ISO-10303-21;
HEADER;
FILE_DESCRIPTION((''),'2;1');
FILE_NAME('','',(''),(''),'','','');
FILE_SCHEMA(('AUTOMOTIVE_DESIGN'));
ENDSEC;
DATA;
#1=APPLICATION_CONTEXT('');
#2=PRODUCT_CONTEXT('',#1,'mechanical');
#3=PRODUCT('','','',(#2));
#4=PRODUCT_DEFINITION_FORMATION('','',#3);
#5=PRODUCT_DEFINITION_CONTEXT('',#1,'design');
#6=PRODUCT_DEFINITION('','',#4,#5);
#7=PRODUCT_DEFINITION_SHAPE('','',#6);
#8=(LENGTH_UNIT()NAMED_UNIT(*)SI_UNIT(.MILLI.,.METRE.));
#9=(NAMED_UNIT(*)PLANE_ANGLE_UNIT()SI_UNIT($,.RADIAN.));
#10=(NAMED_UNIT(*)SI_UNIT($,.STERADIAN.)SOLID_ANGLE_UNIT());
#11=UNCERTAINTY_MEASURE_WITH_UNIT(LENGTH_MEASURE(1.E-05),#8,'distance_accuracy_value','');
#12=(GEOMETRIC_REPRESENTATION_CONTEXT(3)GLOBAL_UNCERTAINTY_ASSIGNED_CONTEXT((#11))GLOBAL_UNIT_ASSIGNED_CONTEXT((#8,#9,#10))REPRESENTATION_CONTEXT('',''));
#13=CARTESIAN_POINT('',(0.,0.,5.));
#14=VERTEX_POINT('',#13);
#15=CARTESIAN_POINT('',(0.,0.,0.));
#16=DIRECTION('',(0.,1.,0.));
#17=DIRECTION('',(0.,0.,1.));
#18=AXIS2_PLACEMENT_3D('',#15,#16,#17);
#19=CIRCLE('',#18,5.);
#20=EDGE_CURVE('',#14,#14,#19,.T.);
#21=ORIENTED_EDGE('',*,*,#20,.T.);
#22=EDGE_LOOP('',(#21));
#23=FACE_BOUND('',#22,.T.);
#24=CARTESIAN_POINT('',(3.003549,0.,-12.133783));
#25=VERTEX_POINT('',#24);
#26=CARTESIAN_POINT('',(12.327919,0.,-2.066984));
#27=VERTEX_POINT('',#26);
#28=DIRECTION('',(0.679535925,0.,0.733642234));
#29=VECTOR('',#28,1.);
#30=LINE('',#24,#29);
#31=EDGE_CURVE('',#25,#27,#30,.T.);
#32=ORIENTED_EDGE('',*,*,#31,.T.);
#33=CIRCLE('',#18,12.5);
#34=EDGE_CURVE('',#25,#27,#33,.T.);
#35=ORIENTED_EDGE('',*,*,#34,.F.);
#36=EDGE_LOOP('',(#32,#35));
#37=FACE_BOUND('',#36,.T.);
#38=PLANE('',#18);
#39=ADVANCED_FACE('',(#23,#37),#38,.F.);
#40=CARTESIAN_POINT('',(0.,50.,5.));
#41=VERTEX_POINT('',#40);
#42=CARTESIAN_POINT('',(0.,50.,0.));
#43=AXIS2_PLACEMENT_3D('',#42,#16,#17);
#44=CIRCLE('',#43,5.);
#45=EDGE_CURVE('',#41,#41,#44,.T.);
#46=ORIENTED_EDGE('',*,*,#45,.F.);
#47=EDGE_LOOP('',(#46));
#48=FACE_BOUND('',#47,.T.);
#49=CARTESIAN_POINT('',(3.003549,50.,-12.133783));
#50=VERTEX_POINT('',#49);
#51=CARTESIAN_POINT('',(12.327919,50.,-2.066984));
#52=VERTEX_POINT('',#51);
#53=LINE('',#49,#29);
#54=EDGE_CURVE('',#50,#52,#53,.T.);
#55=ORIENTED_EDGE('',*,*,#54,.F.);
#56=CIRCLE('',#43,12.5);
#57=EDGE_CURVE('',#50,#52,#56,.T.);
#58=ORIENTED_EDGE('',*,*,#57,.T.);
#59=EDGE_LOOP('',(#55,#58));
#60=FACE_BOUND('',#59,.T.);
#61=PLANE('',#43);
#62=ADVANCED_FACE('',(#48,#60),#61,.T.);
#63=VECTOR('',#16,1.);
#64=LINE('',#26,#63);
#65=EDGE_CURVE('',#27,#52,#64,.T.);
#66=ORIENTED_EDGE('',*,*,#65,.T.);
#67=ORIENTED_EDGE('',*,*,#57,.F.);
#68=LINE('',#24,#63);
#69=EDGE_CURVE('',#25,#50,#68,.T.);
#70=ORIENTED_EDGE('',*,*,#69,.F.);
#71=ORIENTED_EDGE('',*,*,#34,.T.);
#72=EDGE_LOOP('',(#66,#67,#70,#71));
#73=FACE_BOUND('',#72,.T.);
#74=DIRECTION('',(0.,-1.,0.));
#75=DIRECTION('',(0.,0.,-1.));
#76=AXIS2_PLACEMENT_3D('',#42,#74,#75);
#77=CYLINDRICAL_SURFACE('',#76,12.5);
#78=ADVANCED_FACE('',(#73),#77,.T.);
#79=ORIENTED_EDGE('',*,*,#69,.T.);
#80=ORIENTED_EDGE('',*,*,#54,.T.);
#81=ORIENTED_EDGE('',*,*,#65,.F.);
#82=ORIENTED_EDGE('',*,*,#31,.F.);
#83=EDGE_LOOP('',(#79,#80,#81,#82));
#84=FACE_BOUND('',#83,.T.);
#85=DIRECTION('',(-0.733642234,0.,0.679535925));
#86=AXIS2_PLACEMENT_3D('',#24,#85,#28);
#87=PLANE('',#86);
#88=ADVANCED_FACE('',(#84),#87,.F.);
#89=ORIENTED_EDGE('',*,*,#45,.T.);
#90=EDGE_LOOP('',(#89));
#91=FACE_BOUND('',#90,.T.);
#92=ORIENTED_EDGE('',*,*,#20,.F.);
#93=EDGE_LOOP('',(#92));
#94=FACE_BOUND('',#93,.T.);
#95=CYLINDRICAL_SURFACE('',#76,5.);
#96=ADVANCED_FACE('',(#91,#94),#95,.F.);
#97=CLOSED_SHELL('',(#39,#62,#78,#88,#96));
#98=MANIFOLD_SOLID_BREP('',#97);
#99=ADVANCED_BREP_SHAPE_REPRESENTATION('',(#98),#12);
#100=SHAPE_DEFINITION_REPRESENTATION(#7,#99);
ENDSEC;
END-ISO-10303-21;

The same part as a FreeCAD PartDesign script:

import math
import FreeCAD as App
import Part
import Sketcher
from FreeCAD import Vector
Q = App.Units.Quantity

doc = App.newDocument("Part")
body = doc.addObject("PartDesign::Body", "Body")

# Sketch on XZ plane
sketch1 = body.newObject("Sketcher::SketchObject", "Sketch")
sketch1.AttachmentSupport = (doc.getObject("XZ_Plane"), [""])
sketch1.MapMode = "FlatFace"
sketch1.addGeometry(Part.Circle(Vector(0, 0, 0), Vector(0, 0, 1), 12), False)
sketch1.addGeometry(Part.Circle(Vector(0, 0, 0), Vector(0, 0, 1), 5), False)
sketch1.addConstraint(Sketcher.Constraint("Coincident", 0, 3, -1, 1))
sketch1.addConstraint(Sketcher.Constraint("Coincident", 1, 3, -1, 1))
sketch1.addConstraint(Sketcher.Constraint("Diameter", 0, Q("25 mm")))
sketch1.addConstraint(Sketcher.Constraint("Diameter", 1, Q("10 mm")))
pad1 = body.newObject("PartDesign::Pad", "Pad")
pad1.Profile = sketch1
pad1.Length = 50
pad1.Reversed = True

# Sketch on XZ plane
sketch2 = body.newObject("Sketcher::SketchObject", "Sketch001")
sketch2.AttachmentSupport = (doc.getObject("XZ_Plane"), [""])
sketch2.MapMode = "FlatFace"
sketch2.AttachmentOffset = App.Placement(Vector(0, 0, -50), App.Rotation())
sketch2.addGeometry(Part.LineSegment(Vector(3, -12, 0), Vector(12, -2, 0)), False)
sketch2.addGeometry(Part.ArcOfCircle(Part.Circle(Vector(0, 0, 0), Vector(0, 0, 1), 12), math.radians(-76), math.radians(-10)), False)
sketch2.addConstraint(Sketcher.Constraint("Coincident", 0, 1, 1, 1))
sketch2.addConstraint(Sketcher.Constraint("Coincident", 1, 2, 0, 2))
sketch2.addConstraint(Sketcher.Constraint("Coincident", 1, 3, -1, 1))
sketch2.addConstraint(Sketcher.Constraint("Radius", 1, Q("12.5 mm")))
sketch2.addConstraint(Sketcher.Constraint("DistanceY", 0, 1, 1, 2, Q("10.066799 mm")))
sketch2.addConstraint(Sketcher.Constraint("DistanceX", -1, 1, 0, 1, Q("3.003549 mm")))
pocket1 = body.newObject("PartDesign::Pocket", "Pocket")
pocket1.Profile = sketch2
pocket1.Type = "ThroughAll"
pocket1.Reversed = True

doc.recompute()
